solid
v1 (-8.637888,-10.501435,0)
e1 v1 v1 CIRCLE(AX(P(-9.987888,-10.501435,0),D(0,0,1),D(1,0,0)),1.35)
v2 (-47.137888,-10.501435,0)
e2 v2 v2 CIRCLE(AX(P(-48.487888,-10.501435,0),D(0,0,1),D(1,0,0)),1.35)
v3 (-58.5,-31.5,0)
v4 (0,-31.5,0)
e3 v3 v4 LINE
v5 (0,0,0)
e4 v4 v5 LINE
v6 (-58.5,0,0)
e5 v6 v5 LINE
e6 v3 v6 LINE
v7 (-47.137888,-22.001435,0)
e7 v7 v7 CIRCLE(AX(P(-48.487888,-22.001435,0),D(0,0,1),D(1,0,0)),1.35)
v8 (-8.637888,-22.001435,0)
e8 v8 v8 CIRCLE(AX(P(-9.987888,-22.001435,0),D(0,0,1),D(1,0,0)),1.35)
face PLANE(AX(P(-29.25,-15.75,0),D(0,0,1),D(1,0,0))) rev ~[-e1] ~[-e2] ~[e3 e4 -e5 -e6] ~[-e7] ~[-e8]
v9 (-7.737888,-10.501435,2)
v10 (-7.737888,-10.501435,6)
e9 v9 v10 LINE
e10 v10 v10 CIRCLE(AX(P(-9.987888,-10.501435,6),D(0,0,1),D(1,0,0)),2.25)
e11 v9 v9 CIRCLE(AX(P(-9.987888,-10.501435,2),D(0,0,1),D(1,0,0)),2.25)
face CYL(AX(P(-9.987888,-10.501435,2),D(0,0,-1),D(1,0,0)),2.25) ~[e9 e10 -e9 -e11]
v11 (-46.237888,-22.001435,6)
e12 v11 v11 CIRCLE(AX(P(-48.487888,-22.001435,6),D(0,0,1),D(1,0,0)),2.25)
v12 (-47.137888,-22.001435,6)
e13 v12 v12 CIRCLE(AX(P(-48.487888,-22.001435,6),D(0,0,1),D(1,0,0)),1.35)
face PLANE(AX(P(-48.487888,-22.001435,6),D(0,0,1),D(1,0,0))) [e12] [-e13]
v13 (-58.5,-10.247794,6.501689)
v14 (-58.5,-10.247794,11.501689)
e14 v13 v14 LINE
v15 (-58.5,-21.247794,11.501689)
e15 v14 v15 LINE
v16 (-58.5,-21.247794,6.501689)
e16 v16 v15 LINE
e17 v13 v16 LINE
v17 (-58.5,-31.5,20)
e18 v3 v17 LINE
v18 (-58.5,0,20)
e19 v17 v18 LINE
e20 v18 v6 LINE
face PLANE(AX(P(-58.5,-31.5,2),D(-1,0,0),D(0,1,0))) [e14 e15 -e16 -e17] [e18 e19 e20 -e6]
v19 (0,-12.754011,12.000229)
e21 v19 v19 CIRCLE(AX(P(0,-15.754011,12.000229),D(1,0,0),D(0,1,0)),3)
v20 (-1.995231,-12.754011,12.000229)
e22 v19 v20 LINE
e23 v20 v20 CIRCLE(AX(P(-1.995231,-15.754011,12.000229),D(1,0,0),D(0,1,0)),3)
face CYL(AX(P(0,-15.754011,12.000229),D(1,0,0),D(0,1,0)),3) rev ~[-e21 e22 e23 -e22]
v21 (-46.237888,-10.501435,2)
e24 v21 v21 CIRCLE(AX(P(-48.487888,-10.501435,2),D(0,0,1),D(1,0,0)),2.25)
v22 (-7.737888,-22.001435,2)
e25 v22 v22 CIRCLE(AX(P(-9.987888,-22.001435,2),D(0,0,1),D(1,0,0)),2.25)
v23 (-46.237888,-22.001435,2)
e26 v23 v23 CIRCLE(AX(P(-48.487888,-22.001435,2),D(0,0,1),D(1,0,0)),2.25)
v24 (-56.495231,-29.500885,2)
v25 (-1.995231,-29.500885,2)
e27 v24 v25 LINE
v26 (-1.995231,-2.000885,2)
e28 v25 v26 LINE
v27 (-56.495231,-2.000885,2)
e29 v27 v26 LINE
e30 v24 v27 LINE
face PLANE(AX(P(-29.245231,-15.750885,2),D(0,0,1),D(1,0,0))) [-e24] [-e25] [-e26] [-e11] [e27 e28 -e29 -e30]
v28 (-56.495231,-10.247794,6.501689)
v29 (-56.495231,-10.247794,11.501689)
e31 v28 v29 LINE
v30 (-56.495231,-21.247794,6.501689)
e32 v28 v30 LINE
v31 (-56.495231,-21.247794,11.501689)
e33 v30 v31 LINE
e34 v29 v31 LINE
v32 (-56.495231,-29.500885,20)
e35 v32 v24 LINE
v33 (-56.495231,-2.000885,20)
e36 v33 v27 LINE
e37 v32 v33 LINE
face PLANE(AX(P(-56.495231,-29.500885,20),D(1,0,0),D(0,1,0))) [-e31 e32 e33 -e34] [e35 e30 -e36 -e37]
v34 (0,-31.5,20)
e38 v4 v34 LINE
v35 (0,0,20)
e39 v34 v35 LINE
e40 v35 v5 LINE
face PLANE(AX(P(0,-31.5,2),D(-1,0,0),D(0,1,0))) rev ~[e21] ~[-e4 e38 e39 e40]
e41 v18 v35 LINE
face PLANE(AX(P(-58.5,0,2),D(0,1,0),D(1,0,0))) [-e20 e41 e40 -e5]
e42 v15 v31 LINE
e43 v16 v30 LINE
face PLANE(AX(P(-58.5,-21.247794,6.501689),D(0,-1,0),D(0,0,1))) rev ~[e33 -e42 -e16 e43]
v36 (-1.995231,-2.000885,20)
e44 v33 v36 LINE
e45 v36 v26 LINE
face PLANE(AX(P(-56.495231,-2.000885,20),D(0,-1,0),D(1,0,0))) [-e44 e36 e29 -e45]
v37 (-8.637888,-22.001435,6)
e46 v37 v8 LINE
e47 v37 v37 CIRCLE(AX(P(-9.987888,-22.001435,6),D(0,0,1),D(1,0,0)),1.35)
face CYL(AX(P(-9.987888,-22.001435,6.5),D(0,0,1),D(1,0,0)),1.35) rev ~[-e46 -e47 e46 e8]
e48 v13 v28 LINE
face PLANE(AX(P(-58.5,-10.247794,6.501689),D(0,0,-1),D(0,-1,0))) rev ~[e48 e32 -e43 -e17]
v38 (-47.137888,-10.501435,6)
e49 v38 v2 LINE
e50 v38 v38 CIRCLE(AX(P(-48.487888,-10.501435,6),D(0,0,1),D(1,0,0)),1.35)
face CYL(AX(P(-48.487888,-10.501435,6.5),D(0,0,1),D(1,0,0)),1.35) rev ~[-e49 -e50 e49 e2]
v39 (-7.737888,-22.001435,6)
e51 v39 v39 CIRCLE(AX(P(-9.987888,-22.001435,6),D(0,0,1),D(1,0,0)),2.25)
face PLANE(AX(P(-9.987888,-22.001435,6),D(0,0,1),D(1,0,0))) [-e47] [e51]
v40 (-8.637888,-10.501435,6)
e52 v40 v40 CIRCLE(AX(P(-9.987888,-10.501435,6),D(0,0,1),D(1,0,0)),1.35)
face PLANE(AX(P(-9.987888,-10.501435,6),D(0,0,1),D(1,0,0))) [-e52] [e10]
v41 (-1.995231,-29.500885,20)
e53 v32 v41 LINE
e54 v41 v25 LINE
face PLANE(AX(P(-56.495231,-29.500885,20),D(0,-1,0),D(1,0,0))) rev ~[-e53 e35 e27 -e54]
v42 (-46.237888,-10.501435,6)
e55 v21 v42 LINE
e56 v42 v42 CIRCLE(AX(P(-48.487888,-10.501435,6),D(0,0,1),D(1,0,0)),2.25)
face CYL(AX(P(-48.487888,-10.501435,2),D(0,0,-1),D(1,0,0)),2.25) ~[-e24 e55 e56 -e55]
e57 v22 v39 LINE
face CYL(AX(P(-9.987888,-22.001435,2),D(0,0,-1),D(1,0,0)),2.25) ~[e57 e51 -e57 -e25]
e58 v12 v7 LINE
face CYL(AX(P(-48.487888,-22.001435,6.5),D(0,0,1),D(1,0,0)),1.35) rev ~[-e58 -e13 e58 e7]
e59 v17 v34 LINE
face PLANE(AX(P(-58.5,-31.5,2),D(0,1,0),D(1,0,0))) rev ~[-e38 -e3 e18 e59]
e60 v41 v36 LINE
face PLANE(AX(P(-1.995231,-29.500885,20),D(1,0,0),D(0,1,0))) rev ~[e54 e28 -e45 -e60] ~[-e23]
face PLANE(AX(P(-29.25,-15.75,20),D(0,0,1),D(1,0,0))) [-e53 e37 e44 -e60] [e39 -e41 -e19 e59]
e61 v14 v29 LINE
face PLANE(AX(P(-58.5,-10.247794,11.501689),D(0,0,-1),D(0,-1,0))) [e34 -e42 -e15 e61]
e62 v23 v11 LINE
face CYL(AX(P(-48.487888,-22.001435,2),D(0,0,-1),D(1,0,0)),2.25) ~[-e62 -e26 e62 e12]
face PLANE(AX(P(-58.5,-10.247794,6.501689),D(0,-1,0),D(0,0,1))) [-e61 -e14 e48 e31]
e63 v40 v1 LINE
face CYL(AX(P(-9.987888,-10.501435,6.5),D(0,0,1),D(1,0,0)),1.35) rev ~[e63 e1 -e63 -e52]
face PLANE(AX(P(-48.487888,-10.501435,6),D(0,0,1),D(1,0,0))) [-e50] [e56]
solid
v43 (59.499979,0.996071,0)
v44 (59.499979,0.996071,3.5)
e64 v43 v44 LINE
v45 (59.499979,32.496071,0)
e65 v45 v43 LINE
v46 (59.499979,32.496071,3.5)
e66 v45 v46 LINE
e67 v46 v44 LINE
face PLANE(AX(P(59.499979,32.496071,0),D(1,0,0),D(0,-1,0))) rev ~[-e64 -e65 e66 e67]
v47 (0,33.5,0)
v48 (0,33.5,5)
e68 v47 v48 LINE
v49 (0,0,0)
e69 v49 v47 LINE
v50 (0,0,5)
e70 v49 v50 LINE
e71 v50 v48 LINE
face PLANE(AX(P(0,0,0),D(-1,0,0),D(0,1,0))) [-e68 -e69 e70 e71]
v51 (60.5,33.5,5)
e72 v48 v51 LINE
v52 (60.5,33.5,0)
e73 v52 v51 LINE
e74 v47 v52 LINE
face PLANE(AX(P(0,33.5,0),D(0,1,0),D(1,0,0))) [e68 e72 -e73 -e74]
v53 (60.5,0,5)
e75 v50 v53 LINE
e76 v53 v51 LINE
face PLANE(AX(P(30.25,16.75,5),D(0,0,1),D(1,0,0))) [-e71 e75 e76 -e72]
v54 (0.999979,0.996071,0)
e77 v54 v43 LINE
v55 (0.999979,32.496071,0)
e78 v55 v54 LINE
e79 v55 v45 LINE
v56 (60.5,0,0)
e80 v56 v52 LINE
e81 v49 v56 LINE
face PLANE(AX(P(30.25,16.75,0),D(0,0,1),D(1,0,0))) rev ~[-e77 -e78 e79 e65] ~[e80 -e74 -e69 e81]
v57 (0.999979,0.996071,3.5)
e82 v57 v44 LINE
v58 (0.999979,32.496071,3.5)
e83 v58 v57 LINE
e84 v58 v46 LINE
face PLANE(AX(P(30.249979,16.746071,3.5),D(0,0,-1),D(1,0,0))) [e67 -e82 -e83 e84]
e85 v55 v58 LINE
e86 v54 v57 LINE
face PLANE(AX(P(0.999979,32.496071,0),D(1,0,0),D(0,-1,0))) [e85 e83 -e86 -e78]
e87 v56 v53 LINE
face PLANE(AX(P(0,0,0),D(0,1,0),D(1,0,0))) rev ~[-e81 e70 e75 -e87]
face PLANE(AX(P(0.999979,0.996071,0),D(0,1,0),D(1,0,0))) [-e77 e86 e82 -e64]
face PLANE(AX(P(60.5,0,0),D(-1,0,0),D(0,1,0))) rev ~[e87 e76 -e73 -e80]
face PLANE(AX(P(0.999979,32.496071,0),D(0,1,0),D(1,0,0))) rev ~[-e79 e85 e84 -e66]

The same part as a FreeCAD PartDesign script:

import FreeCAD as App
import Part
import Sketcher
from FreeCAD import Vector

doc = App.newDocument("Part")
body = doc.addObject("PartDesign::Body", "Body")

# Sketch on XY plane
sketch1 = body.newObject("Sketcher::SketchObject", "Sketch")
sketch1.AttachmentSupport = (doc.getObject("XY_Plane"), [""])
sketch1.MapMode = "FlatFace"
sketch1.addGeometry([
    Part.LineSegment(Vector(-58.5, 0, 0), Vector(-58.5, -31.5, 0)),
    Part.LineSegment(Vector(-58.5, -31.5, 0), Vector(0, -31.5, 0)),
    Part.LineSegment(Vector(0, -31.5, 0), Vector(0, 0, 0)),
    Part.LineSegment(Vector(0, 0, 0), Vector(-58.5, 0, 0)),
], False)
sketch1.addConstraint([
    Sketcher.Constraint("Coincident", 0, 2, 1, 1),
    Sketcher.Constraint("Coincident", 1, 2, 2, 1),
    Sketcher.Constraint("Coincident", 2, 2, 3, 1),
    Sketcher.Constraint("Coincident", 3, 2, 0, 1),
    Sketcher.Constraint("Vertical", 0),
    Sketcher.Constraint("Horizontal", 1),
    Sketcher.Constraint("Vertical", 2),
    Sketcher.Constraint("Horizontal", 3),
    Sketcher.Constraint("Coincident", 2, 2, -1, 1),
    Sketcher.Constraint("DistanceX", 1, 1, 1, 2, 58.5),
    Sketcher.Constraint("DistanceY", 0, 2, 0, 1, 31.5),
])
pad1 = body.newObject("PartDesign::Pad", "Pad")
pad1.Profile = sketch1
pad1.Length = 2

# Sketch on XY plane
sketch2 = body.newObject("Sketcher::SketchObject", "Sketch001")
sketch2.AttachmentSupport = (doc.getObject("XY_Plane"), [""])
sketch2.MapMode = "FlatFace"
sketch2.AttachmentOffset = App.Placement(Vector(0, 0, 2), App.Rotation())
sketch2.addGeometry([
    Part.LineSegment(Vector(-58.5, 0, 0), Vector(-58.5, -31.5, 0)),
    Part.LineSegment(Vector(-58.5, -31.5, 0), Vector(0, -31.5, 0)),
    Part.LineSegment(Vector(0, -31.5, 0), Vector(0, 0, 0)),
    Part.LineSegment(Vector(0, 0, 0), Vector(-58.5, 0, 0)),
], False)
sketch2.addConstraint([
    Sketcher.Constraint("Coincident", 0, 2, 1, 1),
    Sketcher.Constraint("Coincident", 1, 2, 2, 1),
    Sketcher.Constraint("Coincident", 2, 2, 3, 1),
    Sketcher.Constraint("Coincident", 3, 2, 0, 1),
    Sketcher.Constraint("Vertical", 0),
    Sketcher.Constraint("Horizontal", 1),
    Sketcher.Constraint("Vertical", 2),
    Sketcher.Constraint("Horizontal", 3),
    Sketcher.Constraint("Coincident", 2, 2, -1, 1),
    Sketcher.Constraint("DistanceX", 1, 1, 1, 2, 58.5),
    Sketcher.Constraint("DistanceY", 0, 2, 0, 1, 31.5),
])
pad2 = body.newObject("PartDesign::Pad", "Pad001")
pad2.Profile = sketch2
pad2.Length = 18

# Sketch on XY plane
sketch3 = body.newObject("Sketcher::SketchObject", "Sketch002")
sketch3.AttachmentSupport = (doc.getObject("XY_Plane"), [""])
sketch3.MapMode = "FlatFace"
sketch3.AttachmentOffset = App.Placement(Vector(0, 0, 20), App.Rotation())
sketch3.addGeometry([
    Part.LineSegment(Vector(-56.495231, -2.000885, 0), Vector(-56.495231, -29.500885, 0)),
    Part.LineSegment(Vector(-56.495231, -29.500885, 0), Vector(-1.995231, -29.500885, 0)),
    Part.LineSegment(Vector(-1.995231, -29.500885, 0), Vector(-1.995231, -2.000885, 0)),
    Part.LineSegment(Vector(-1.995231, -2.000885, 0), Vector(-56.495231, -2.000885, 0)),
], False)
sketch3.addConstraint([
    Sketcher.Constraint("Coincident", 0, 2, 1, 1),
    Sketcher.Constraint("Coincident", 1, 2, 2, 1),
    Sketcher.Constraint("Coincident", 2, 2, 3, 1),
    Sketcher.Constraint("Coincident", 3, 2, 0, 1),
    Sketcher.Constraint("Vertical", 0),
    Sketcher.Constraint("Horizontal", 1),
    Sketcher.Constraint("Vertical", 2),
    Sketcher.Constraint("Horizontal", 3),
    Sketcher.Constraint("DistanceX", 1, 1, 1, 2, 54.5),
    Sketcher.Constraint("DistanceY", 0, 2, 0, 1, 27.5),
    Sketcher.Constraint("DistanceX", 0, 2, -1, 1, 56.495231),
    Sketcher.Constraint("DistanceY", 0, 2, -1, 1, 29.500885),
])
pocket1 = body.newObject("PartDesign::Pocket", "Pocket")
pocket1.Profile = sketch3
pocket1.Length = 18

# Sketch on XY plane
sketch4 = body.newObject("Sketcher::SketchObject", "Sketch003")
sketch4.AttachmentSupport = (doc.getObject("XY_Plane"), [""])
sketch4.MapMode = "FlatFace"
sketch4.AttachmentOffset = App.Placement(Vector(0, 0, 2), App.Rotation())
sketch4.addGeometry([
    Part.Circle(Vector(-48.487888, -10.501435, 0), Vector(0, 0, 1), 2.25),
    Part.Circle(Vector(-48.487888, -22.001435, 0), Vector(0, 0, 1), 2.25),
    Part.Circle(Vector(-9.987888, -22.001435, 0), Vector(0, 0, 1), 2.25),
    Part.Circle(Vector(-9.987888, -10.501435, 0), Vector(0, 0, 1), 2.25),
], False)
sketch4.addConstraint([
    Sketcher.Constraint("Equal", 0, 1),
    Sketcher.Constraint("Equal", 1, 2),
    Sketcher.Constraint("Equal", 2, 3),
    Sketcher.Constraint("Horizontal", 1, 3, 2, 3),
    Sketcher.Constraint("Horizontal", 0, 3, 3, 3),
    Sketcher.Constraint("Vertical", 0, 3, 1, 3),
    Sketcher.Constraint("Vertical", 2, 3, 3, 3),
    Sketcher.Constraint("Diameter", 0, 4.5),
    Sketcher.Constraint("DistanceY", 1, 3, 0, 3, 11.5),
    Sketcher.Constraint("DistanceX", 1, 3, 2, 3, 38.5),
    Sketcher.Constraint("DistanceX", 0, 3, -1, 1, 48.487888),
    Sketcher.Constraint("DistanceY", 0, 3, -1, 1, 10.501435),
])
pad3 = body.newObject("PartDesign::Pad", "Pad002")
pad3.Profile = sketch4
pad3.Length = 4

# Sketch on XY plane
sketch5 = body.newObject("Sketcher::SketchObject", "Sketch004")
sketch5.AttachmentSupport = (doc.getObject("XY_Plane"), [""])
sketch5.MapMode = "FlatFace"
sketch5.AttachmentOffset = App.Placement(Vector(0, 0, 6.5), App.Rotation())
sketch5.addGeometry([
    Part.Circle(Vector(-48.487888, -10.501435, 0), Vector(0, 0, 1), 1.35),
    Part.Circle(Vector(-48.487888, -22.001435, 0), Vector(0, 0, 1), 1.35),
    Part.Circle(Vector(-9.987888, -22.001435, 0), Vector(0, 0, 1), 1.35),
    Part.Circle(Vector(-9.987888, -10.501435, 0), Vector(0, 0, 1), 1.35),
], False)
sketch5.addConstraint([
    Sketcher.Constraint("Equal", 0, 1),
    Sketcher.Constraint("Equal", 1, 2),
    Sketcher.Constraint("Equal", 2, 3),
    Sketcher.Constraint("Horizontal", 1, 3, 2, 3),
    Sketcher.Constraint("Horizontal", 0, 3, 3, 3),
    Sketcher.Constraint("Vertical", 0, 3, 1, 3),
    Sketcher.Constraint("Vertical", 2, 3, 3, 3),
    Sketcher.Constraint("Diameter", 0, 2.7),
    Sketcher.Constraint("DistanceY", 1, 3, 0, 3, 11.5),
    Sketcher.Constraint("DistanceX", 1, 3, 2, 3, 38.5),
    Sketcher.Constraint("DistanceX", 0, 3, -1, 1, 48.487888),
    Sketcher.Constraint("DistanceY", 0, 3, -1, 1, 10.501435),
])
pocket2 = body.newObject("PartDesign::Pocket", "Pocket001")
pocket2.Profile = sketch5
pocket2.Type = "ThroughAll"

# Sketch on YZ plane
sketch6 = body.newObject("Sketcher::SketchObject", "Sketch005")
sketch6.AttachmentSupport = (doc.getObject("YZ_Plane"), [""])
sketch6.MapMode = "FlatFace"
sketch6.AttachmentOffset = App.Placement(Vector(0, 0, -58.5), App.Rotation())
sketch6.addGeometry([
    Part.LineSegment(Vector(-10.247794, 11.501689, 0), Vector(-10.247794, 6.501689, 0)),
    Part.LineSegment(Vector(-10.247794, 6.501689, 0), Vector(-21.247794, 6.501689, 0)),
    Part.LineSegment(Vector(-21.247794, 6.501689, 0), Vector(-21.247794, 11.501689, 0)),
    Part.LineSegment(Vector(-21.247794, 11.501689, 0), Vector(-10.247794, 11.501689, 0)),
], False)
sketch6.addConstraint([
    Sketcher.Constraint("Coincident", 0, 2, 1, 1),
    Sketcher.Constraint("Coincident", 1, 2, 2, 1),
    Sketcher.Constraint("Coincident", 2, 2, 3, 1),
    Sketcher.Constraint("Coincident", 3, 2, 0, 1),
    Sketcher.Constraint("Vertical", 0),
    Sketcher.Constraint("Horizontal", 1),
    Sketcher.Constraint("Vertical", 2),
    Sketcher.Constraint("Horizontal", 3),
    Sketcher.Constraint("DistanceX", 1, 2, 1, 1, 11.0),
    Sketcher.Constraint("DistanceY", 0, 2, 0, 1, 5.0),
    Sketcher.Constraint("DistanceY", -1, 1, 0, 2, 6.501689),
    Sketcher.Constraint("DistanceX", 0, 2, -1, 1, 10.247794),
])
pocket3 = body.newObject("PartDesign::Pocket", "Pocket002")
pocket3.Profile = sketch6
pocket3.Length = 2.004769
pocket3.Reversed = True

# Sketch on YZ plane
sketch7 = body.newObject("Sketcher::SketchObject", "Sketch006")
sketch7.AttachmentSupport = (doc.getObject("YZ_Plane"), [""])
sketch7.MapMode = "FlatFace"
sketch7.addGeometry(Part.Circle(Vector(-15.754011, 12.000229, 0), Vector(0, 0, 1), 3), False)
sketch7.addConstraint([
    Sketcher.Constraint("Diameter", 0, 6.0),
    Sketcher.Constraint("DistanceX", 0, 3, -1, 1, 15.754011),
    Sketcher.Constraint("DistanceY", -1, 1, 0, 3, 12.000229),
])
pocket4 = body.newObject("PartDesign::Pocket", "Pocket003")
pocket4.Profile = sketch7
pocket4.Length = 1.995231
body2 = doc.addObject("PartDesign::Body", "Body001")

# Sketch on XY plane
sketch8 = body2.newObject("Sketcher::SketchObject", "Sketch007")
sketch8.AttachmentSupport = (doc.getObject("XY_Plane001"), [""])
sketch8.MapMode = "FlatFace"
sketch8.addGeometry([
    Part.LineSegment(Vector(0, 33.5, 0), Vector(0, 0, 0)),
    Part.LineSegment(Vector(0, 0, 0), Vector(60.5, 0, 0)),
    Part.LineSegment(Vector(60.5, 0, 0), Vector(60.5, 33.5, 0)),
    Part.LineSegment(Vector(60.5, 33.5, 0), Vector(0, 33.5, 0)),
], False)
sketch8.addConstraint([
    Sketcher.Constraint("Coincident", 0, 2, 1, 1),
    Sketcher.Constraint("Coincident", 1, 2, 2, 1),
    Sketcher.Constraint("Coincident", 2, 2, 3, 1),
    Sketcher.Constraint("Coincident", 3, 2, 0, 1),
    Sketcher.Constraint("Vertical", 0),
    Sketcher.Constraint("Horizontal", 1),
    Sketcher.Constraint("Vertical", 2),
    Sketcher.Constraint("Horizontal", 3),
    Sketcher.Constraint("Coincident", 0, 2, -1, 1),
    Sketcher.Constraint("DistanceX", 1, 1, 1, 2, 60.5),
    Sketcher.Constraint("DistanceY", 0, 2, 0, 1, 33.5),
])
pad4 = body2.newObject("PartDesign::Pad", "Pad003")
pad4.Profile = sketch8
pad4.Length = 5

# Sketch on XY plane
sketch9 = body2.newObject("Sketcher::SketchObject", "Sketch008")
sketch9.AttachmentSupport = (doc.getObject("XY_Plane001"), [""])
sketch9.MapMode = "FlatFace"
sketch9.addGeometry([
    Part.LineSegment(Vector(0.999979, 0.996071, 0), Vector(0.999979, 32.496071, 0)),
    Part.LineSegment(Vector(0.999979, 32.496071, 0), Vector(59.499979, 32.496071, 0)),
    Part.LineSegment(Vector(59.499979, 32.496071, 0), Vector(59.499979, 0.996071, 0)),
    Part.LineSegment(Vector(59.499979, 0.996071, 0), Vector(0.999979, 0.996071, 0)),
], False)
sketch9.addConstraint([
    Sketcher.Constraint("Coincident", 0, 2, 1, 1),
    Sketcher.Constraint("Coincident", 1, 2, 2, 1),
    Sketcher.Constraint("Coincident", 2, 2, 3, 1),
    Sketcher.Constraint("Coincident", 3, 2, 0, 1),
    Sketcher.Constraint("Vertical", 0),
    Sketcher.Constraint("Horizontal", 1),
    Sketcher.Constraint("Vertical", 2),
    Sketcher.Constraint("Horizontal", 3),
    Sketcher.Constraint("DistanceX", 1, 1, 1, 2, 58.5),
    Sketcher.Constraint("DistanceY", 0, 1, 0, 2, 31.5),
    Sketcher.Constraint("DistanceX", -1, 1, 0, 2, 0.999979),
    Sketcher.Constraint("DistanceY", -1, 1, 0, 2, 32.496071),
])
pocket5 = body2.newObject("PartDesign::Pocket", "Pocket004")
pocket5.Profile = sketch9
pocket5.Length = 3.5
pocket5.Reversed = True

doc.recompute()
